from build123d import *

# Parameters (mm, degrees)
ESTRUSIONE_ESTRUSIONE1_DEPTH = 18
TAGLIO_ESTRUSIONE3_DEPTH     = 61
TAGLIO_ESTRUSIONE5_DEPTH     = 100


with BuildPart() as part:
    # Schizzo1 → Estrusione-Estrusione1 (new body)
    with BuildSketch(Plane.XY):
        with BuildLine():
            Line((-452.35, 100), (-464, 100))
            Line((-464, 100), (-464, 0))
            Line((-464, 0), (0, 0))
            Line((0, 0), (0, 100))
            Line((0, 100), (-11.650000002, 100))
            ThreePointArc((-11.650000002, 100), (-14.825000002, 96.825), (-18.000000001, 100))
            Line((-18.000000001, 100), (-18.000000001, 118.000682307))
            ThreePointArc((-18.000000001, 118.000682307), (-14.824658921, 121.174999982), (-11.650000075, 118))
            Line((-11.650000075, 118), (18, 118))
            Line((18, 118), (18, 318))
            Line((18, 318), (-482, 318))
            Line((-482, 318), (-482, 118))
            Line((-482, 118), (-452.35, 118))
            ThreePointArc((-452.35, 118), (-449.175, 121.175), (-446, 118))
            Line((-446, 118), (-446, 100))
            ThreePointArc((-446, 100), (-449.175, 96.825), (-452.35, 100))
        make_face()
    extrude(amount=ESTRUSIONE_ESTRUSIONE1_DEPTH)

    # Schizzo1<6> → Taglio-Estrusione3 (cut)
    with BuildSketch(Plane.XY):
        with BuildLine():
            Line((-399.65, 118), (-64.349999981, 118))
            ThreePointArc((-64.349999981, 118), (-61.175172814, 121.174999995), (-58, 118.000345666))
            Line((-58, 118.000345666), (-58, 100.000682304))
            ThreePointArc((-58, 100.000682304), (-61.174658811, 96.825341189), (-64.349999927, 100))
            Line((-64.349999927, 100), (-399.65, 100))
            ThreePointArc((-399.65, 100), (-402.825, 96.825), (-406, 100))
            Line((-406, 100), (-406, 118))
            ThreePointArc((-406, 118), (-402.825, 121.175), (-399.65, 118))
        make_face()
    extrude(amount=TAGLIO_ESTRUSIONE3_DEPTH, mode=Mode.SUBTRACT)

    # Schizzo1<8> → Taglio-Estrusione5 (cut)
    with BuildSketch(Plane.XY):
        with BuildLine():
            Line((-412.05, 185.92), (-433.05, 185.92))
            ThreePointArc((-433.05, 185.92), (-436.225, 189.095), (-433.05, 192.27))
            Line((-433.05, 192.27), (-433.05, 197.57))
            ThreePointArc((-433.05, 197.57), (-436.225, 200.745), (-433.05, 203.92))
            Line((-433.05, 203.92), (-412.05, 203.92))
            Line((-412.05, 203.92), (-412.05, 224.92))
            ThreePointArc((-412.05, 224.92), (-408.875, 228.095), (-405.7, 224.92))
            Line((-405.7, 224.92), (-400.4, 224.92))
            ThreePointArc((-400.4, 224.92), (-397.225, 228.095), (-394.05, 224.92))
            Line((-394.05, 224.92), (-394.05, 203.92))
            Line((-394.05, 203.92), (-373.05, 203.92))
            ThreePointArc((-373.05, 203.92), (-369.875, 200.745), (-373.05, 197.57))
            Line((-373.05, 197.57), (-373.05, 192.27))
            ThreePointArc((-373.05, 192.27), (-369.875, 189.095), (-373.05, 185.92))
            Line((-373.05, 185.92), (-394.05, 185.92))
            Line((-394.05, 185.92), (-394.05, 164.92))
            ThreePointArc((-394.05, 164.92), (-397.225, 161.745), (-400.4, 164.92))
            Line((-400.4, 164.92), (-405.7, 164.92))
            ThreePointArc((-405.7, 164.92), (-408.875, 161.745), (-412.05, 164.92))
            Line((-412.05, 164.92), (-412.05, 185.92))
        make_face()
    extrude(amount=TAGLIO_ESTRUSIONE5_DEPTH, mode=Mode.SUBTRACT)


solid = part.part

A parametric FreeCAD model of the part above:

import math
import FreeCAD as App
import Part
import Sketcher

V = App.Vector
Q = App.Units.Quantity

doc = App.newDocument("Part")
params = doc.addObject("Spreadsheet::Sheet", "Params")
for row, (alias, value) in enumerate([
    ("sketch1_width", "464 mm"),
    ("sketch1_width2", "500 mm"),
    ("sketch1_height", "100 mm"),
    ("sketch1_height2", "200 mm"),
    ("sketch1_height3", "18 mm"),
    ("pad1_length", "18 mm"),
    ("sketch2_height", "18 mm"),
    ("sketch2_width", "335.3 mm"),
    ("pocket1_length", "61 mm"),
    ("sketch3_width", "21 mm"),
    ("sketch3_width2", "5.3 mm"),
    ("pocket2_length", "100 mm"),
], start=1):
    params.set(f"A{row}", alias)
    params.set(f"B{row}", "=" + value)
    params.setAlias(f"B{row}", alias)

body = doc.addObject("PartDesign::Body", "Body")

# Sketch on XY plane
sketch1 = doc.addObject("Sketcher::SketchObject", "Sketch")
body.addObject(sketch1)
sketch1.AttachmentSupport = (doc.XY_Plane, [""])
sketch1.MapMode = "FlatFace"
sketch1.addGeometry(Part.LineSegment(V(-452.4, 100, 0), V(-464, 100, 0)), False)
sketch1.addGeometry(Part.LineSegment(V(-464, 100, 0), V(-464, 0, 0)), False)
sketch1.addGeometry(Part.LineSegment(V(-464, 0, 0), V(0, 0, 0)), False)
sketch1.addGeometry(Part.LineSegment(V(0, 0, 0), V(0, 100, 0)), False)
sketch1.addGeometry(Part.LineSegment(V(0, 100, 0), V(-11.7, 100, 0)), False)
sketch1.addGeometry(Part.ArcOfCircle(Part.Circle(V(-14.8, 100, 0), V(0, 0, 1), 3.2), math.radians(180), math.radians(360)), False)
sketch1.addGeometry(Part.LineSegment(V(-18, 100, 0), V(-18, 118, 0)), False)
sketch1.addGeometry(Part.ArcOfCircle(Part.Circle(V(-14.8, 118, 0), V(0, 0, 1), 3.2), math.radians(0), math.radians(180)), False)
sketch1.addGeometry(Part.LineSegment(V(-11.7, 118, 0), V(18, 118, 0)), False)
sketch1.addGeometry(Part.LineSegment(V(18, 118, 0), V(18, 318, 0)), False)
sketch1.addGeometry(Part.LineSegment(V(18, 318, 0), V(-482, 318, 0)), False)
sketch1.addGeometry(Part.LineSegment(V(-482, 318, 0), V(-482, 118, 0)), False)
sketch1.addGeometry(Part.LineSegment(V(-482, 118, 0), V(-452.4, 118, 0)), False)
sketch1.addGeometry(Part.ArcOfCircle(Part.Circle(V(-449.2, 118, 0), V(0, 0, 1), 3.2), math.radians(0), math.radians(180)), False)
sketch1.addGeometry(Part.LineSegment(V(-446, 118, 0), V(-446, 100, 0)), False)
sketch1.addGeometry(Part.ArcOfCircle(Part.Circle(V(-449.2, 100, 0), V(0, 0, 1), 3.2), math.radians(180), math.radians(360)), False)
sketch1.addConstraint(Sketcher.Constraint("Coincident", 0, 2, 1, 1))
sketch1.addConstraint(Sketcher.Constraint("Coincident", 1, 2, 2, 1))
sketch1.addConstraint(Sketcher.Constraint("Coincident", 2, 2, 3, 1))
sketch1.addConstraint(Sketcher.Constraint("Coincident", 3, 2, 4, 1))
sketch1.addConstraint(Sketcher.Constraint("Coincident", 4, 2, 5, 2))
sketch1.addConstraint(Sketcher.Constraint("Tangent", 5, 1, 6, 1))
sketch1.addConstraint(Sketcher.Constraint("Coincident", 6, 2, 7, 2))
sketch1.addConstraint(Sketcher.Constraint("Coincident", 7, 1, 8, 1))
sketch1.addConstraint(Sketcher.Constraint("Coincident", 8, 2, 9, 1))
sketch1.addConstraint(Sketcher.Constraint("Coincident", 9, 2, 10, 1))
sketch1.addConstraint(Sketcher.Constraint("Coincident", 10, 2, 11, 1))
sketch1.addConstraint(Sketcher.Constraint("Coincident", 11, 2, 12, 1))
sketch1.addConstraint(Sketcher.Constraint("Coincident", 12, 2, 13, 2))
sketch1.addConstraint(Sketcher.Constraint("Tangent", 13, 1, 14, 1))
sketch1.addConstraint(Sketcher.Constraint("Tangent", 14, 2, 15, 2))
sketch1.addConstraint(Sketcher.Constraint("Coincident", 15, 1, 0, 1))
sketch1.addConstraint(Sketcher.Constraint("Horizontal", 0))
sketch1.addConstraint(Sketcher.Constraint("Vertical", 1))
sketch1.addConstraint(Sketcher.Constraint("Horizontal", 2))
sketch1.addConstraint(Sketcher.Constraint("Vertical", 3))
sketch1.addConstraint(Sketcher.Constraint("Horizontal", 4))
sketch1.addConstraint(Sketcher.Constraint("Vertical", 6))
sketch1.addConstraint(Sketcher.Constraint("Horizontal", 8))
sketch1.addConstraint(Sketcher.Constraint("Vertical", 9))
sketch1.addConstraint(Sketcher.Constraint("Horizontal", 10))
sketch1.addConstraint(Sketcher.Constraint("Vertical", 11))
sketch1.addConstraint(Sketcher.Constraint("Horizontal", 12))
sketch1.addConstraint(Sketcher.Constraint("Vertical", 14))
sketch1.addConstraint(Sketcher.Constraint("Coincident", 2, 2, -1, 1))
sketch1.addConstraint(Sketcher.Constraint("Equal", 5, 7))
sketch1.addConstraint(Sketcher.Constraint("Equal", 7, 13))
sketch1.addConstraint(Sketcher.Constraint("Equal", 13, 15))
sketch1.addConstraint(Sketcher.Constraint("Horizontal", 7, 3, 13, 3))
sketch1.addConstraint(Sketcher.Constraint("Horizontal", 5, 3, 15, 3))
sketch1.addConstraint(Sketcher.Constraint("Horizontal", 15, 3, 0, 2))
sketch1.addConstraint(Sketcher.Constraint("Horizontal", 0, 2, 3, 2))
sketch1.addConstraint(Sketcher.Constraint("Horizontal", 13, 3, 7, 1))
sketch1.addConstraint(Sketcher.Constraint("Horizontal", 8, 2, 11, 2))
sketch1.addConstraint(Sketcher.Constraint("Equal", 0, 4))
sketch1.addConstraint(Sketcher.Constraint("Equal", 8, 12))
sketch1.addConstraint(Sketcher.Constraint("DistanceX", 2, 1, 2, 2, Q("464 mm")))
sketch1.addConstraint(Sketcher.Constraint("DistanceX", 10, 2, 10, 1, Q("500 mm")))
sketch1.addConstraint(Sketcher.Constraint("DistanceY", 1, 2, 1, 1, Q("100 mm")))
sketch1.addConstraint(Sketcher.Constraint("DistanceY", 9, 1, 9, 2, Q("200 mm")))
sketch1.addConstraint(Sketcher.Constraint("DistanceY", 14, 2, 14, 1, Q("18 mm")))
sketch1.addConstraint(Sketcher.Constraint("DistanceX", 5, 1, -1, 1, Q("18 mm")))
sketch1.addConstraint(Sketcher.Constraint("Radius", 5, Q("3.175 mm")))
sketch1.addConstraint(Sketcher.Constraint("DistanceY", 6, 1, 6, 2, Q("18.000682 mm")))
sketch1.setExpression("Constraints[40]", "Params.sketch1_width")
sketch1.setExpression("Constraints[41]", "Params.sketch1_width2")
sketch1.setExpression("Constraints[42]", "Params.sketch1_height")
sketch1.setExpression("Constraints[43]", "Params.sketch1_height2")
sketch1.setExpression("Constraints[44]", "Params.sketch1_height3")
pad1 = doc.addObject("PartDesign::Pad", "Pad")
body.addObject(pad1)
pad1.Profile = sketch1
pad1.setExpression("Length", "Params.pad1_length")

# Sketch on XY plane
sketch2 = doc.addObject("Sketcher::SketchObject", "Sketch001")
body.addObject(sketch2)
sketch2.AttachmentSupport = (doc.XY_Plane, [""])
sketch2.MapMode = "FlatFace"
sketch2.addGeometry(Part.LineSegment(V(-64.3, 118, 0), V(-399.6, 118, 0)), False)
sketch2.addGeometry(Part.ArcOfCircle(Part.Circle(V(-402.8, 118, 0), V(0, 0, 1), 3.2), math.radians(0), math.radians(180)), False)
sketch2.addGeometry(Part.LineSegment(V(-406, 118, 0), V(-406, 100, 0)), False)
sketch2.addGeometry(Part.ArcOfCircle(Part.Circle(V(-402.8, 100, 0), V(0, 0, 1), 3.2), math.radians(180), math.radians(360)), False)
sketch2.addGeometry(Part.LineSegment(V(-399.6, 100, 0), V(-64.3, 100, 0)), False)
sketch2.addGeometry(Part.ArcOfCircle(Part.Circle(V(-61.2, 100, 0), V(0, 0, 1), 3.2), math.radians(-180), math.radians(0)), False)
sketch2.addGeometry(Part.LineSegment(V(-58, 100, 0), V(-58, 118, 0)), False)
sketch2.addGeometry(Part.ArcOfCircle(Part.Circle(V(-61.2, 118, 0), V(0, 0, 1), 3.2), math.radians(0), math.radians(180)), False)
sketch2.addConstraint(Sketcher.Constraint("Coincident", 0, 2, 1, 1))
sketch2.addConstraint(Sketcher.Constraint("Tangent", 1, 2, 2, 1))
sketch2.addConstraint(Sketcher.Constraint("Tangent", 2, 2, 3, 1))
sketch2.addConstraint(Sketcher.Constraint("Coincident", 3, 2, 4, 1))
sketch2.addConstraint(Sketcher.Constraint("Coincident", 4, 2, 5, 1))
sketch2.addConstraint(Sketcher.Constraint("Coincident", 5, 2, 6, 1))
sketch2.addConstraint(Sketcher.Constraint("Coincident", 6, 2, 7, 1))
sketch2.addConstraint(Sketcher.Constraint("Coincident", 7, 2, 0, 1))
sketch2.addConstraint(Sketcher.Constraint("Horizontal", 0))
sketch2.addConstraint(Sketcher.Constraint("Vertical", 2))
sketch2.addConstraint(Sketcher.Constraint("Horizontal", 4))
sketch2.addConstraint(Sketcher.Constraint("Vertical", 6))
sketch2.addConstraint(Sketcher.Constraint("Equal", 1, 3))
sketch2.addConstraint(Sketcher.Constraint("Equal", 3, 5))
sketch2.addConstraint(Sketcher.Constraint("Equal", 5, 7))
sketch2.addConstraint(Sketcher.Constraint("Horizontal", 1, 3, 7, 3))
sketch2.addConstraint(Sketcher.Constraint("Horizontal", 7, 3, 0, 2))
sketch2.addConstraint(Sketcher.Constraint("Horizontal", 2, 2, 3, 2))
sketch2.addConstraint(Sketcher.Constraint("DistanceY", 2, 2, 2, 1, Q("18 mm")))
sketch2.addConstraint(Sketcher.Constraint("DistanceX", 0, 2, 0, 1, Q("335.3 mm")))
sketch2.addConstraint(Sketcher.Constraint("DistanceY", -1, 1, 1, 3, Q("118 mm")))
sketch2.addConstraint(Sketcher.Constraint("DistanceX", 1, 2, -1, 1, Q("406 mm")))
sketch2.addConstraint(Sketcher.Constraint("DistanceX", 5, 2, -1, 1, Q("58 mm")))
sketch2.addConstraint(Sketcher.Constraint("DistanceY", 6, 1, 6, 2, Q("17.999663 mm")))
sketch2.addConstraint(Sketcher.Constraint("DistanceY", -1, 1, 5, 3, Q("100.000341 mm")))
sketch2.addConstraint(Sketcher.Constraint("DistanceY", 5, 3, 5, 2, Q("0.000341 mm")))
sketch2.setExpression("Constraints[18]", "Params.sketch2_height")
sketch2.setExpression("Constraints[19]", "Params.sketch2_width")
pocket1 = doc.addObject("PartDesign::Pocket", "Pocket")
body.addObject(pocket1)
pocket1.Profile = sketch2
pocket1.setExpression("Length", "Params.pocket1_length")
pocket1.Reversed = True

# Sketch on XY plane
sketch3 = doc.addObject("Sketcher::SketchObject", "Sketch002")
body.addObject(sketch3)
sketch3.AttachmentSupport = (doc.XY_Plane, [""])
sketch3.MapMode = "FlatFace"
sketch3.addGeometry(Part.LineSegment(V(-433.1, 185.9, 0), V(-412.1, 185.9, 0)), False)
sketch3.addGeometry(Part.LineSegment(V(-412.1, 185.9, 0), V(-412.1, 164.9, 0)), False)
sketch3.addGeometry(Part.ArcOfCircle(Part.Circle(V(-408.9, 164.9, 0), V(0, 0, 1), 3.2), math.radians(180), math.radians(360)), False)
sketch3.addGeometry(Part.LineSegment(V(-405.7, 164.9, 0), V(-400.4, 164.9, 0)), False)
sketch3.addGeometry(Part.ArcOfCircle(Part.Circle(V(-397.2, 164.9, 0), V(0, 0, 1), 3.2), math.radians(180), math.radians(360)), False)
sketch3.addGeometry(Part.LineSegment(V(-394.1, 164.9, 0), V(-394.1, 185.9, 0)), False)
sketch3.addGeometry(Part.LineSegment(V(-394.1, 185.9, 0), V(-373.1, 185.9, 0)), False)
sketch3.addGeometry(Part.ArcOfCircle(Part.Circle(V(-373.1, 189.1, 0), V(0, 0, 1), 3.2), math.radians(-90), math.radians(90)), False)
sketch3.addGeometry(Part.LineSegment(V(-373.1, 192.3, 0), V(-373.1, 197.6, 0)), False)
sketch3.addGeometry(Part.ArcOfCircle(Part.Circle(V(-373.1, 200.7, 0), V(0, 0, 1), 3.2), math.radians(-90), math.radians(90)), False)
sketch3.addGeometry(Part.LineSegment(V(-373.1, 203.9, 0), V(-394.1, 203.9, 0)), False)
sketch3.addGeometry(Part.LineSegment(V(-394.1, 203.9, 0), V(-394.1, 224.9, 0)), False)
sketch3.addGeometry(Part.ArcOfCircle(Part.Circle(V(-397.2, 224.9, 0), V(0, 0, 1), 3.2), math.radians(0), math.radians(180)), False)
sketch3.addGeometry(Part.LineSegment(V(-400.4, 224.9, 0), V(-405.7, 224.9, 0)), False)
sketch3.addGeometry(Part.ArcOfCircle(Part.Circle(V(-408.9, 224.9, 0), V(0, 0, 1), 3.2), math.radians(0), math.radians(180)), False)
sketch3.addGeometry(Part.LineSegment(V(-412.1, 224.9, 0), V(-412.1, 203.9, 0)), False)
sketch3.addGeometry(Part.LineSegment(V(-412.1, 203.9, 0), V(-433.1, 203.9, 0)), False)
sketch3.addGeometry(Part.ArcOfCircle(Part.Circle(V(-433.1, 200.7, 0), V(0, 0, 1), 3.2), math.radians(90), math.radians(270)), False)
sketch3.addGeometry(Part.LineSegment(V(-433.1, 197.6, 0), V(-433.1, 192.3, 0)), False)
sketch3.addGeometry(Part.ArcOfCircle(Part.Circle(V(-433.1, 189.1, 0), V(0, 0, 1), 3.2), math.radians(90), math.radians(270)), False)
sketch3.addConstraint(Sketcher.Constraint("Coincident", 0, 2, 1, 1))
sketch3.addConstraint(Sketcher.Constraint("Tangent", 1, 2, 2, 1))
sketch3.addConstraint(Sketcher.Constraint("Coincident", 2, 2, 3, 1))
sketch3.addConstraint(Sketcher.Constraint("Coincident", 3, 2, 4, 1))
sketch3.addConstraint(Sketcher.Constraint("Tangent", 4, 2, 5, 1))
sketch3.addConstraint(Sketcher.Constraint("Coincident", 5, 2, 6, 1))
sketch3.addConstraint(Sketcher.Constraint("Tangent", 6, 2, 7, 1))
sketch3.addConstraint(Sketcher.Constraint("Coincident", 7, 2, 8, 1))
sketch3.addConstraint(Sketcher.Constraint("Coincident", 8, 2, 9, 1))
sketch3.addConstraint(Sketcher.Constraint("Tangent", 9, 2, 10, 1))
sketch3.addConstraint(Sketcher.Constraint("Coincident", 10, 2, 11, 1))
sketch3.addConstraint(Sketcher.Constraint("Tangent", 11, 2, 12, 1))
sketch3.addConstraint(Sketcher.Constraint("Coincident", 12, 2, 13, 1))
sketch3.addConstraint(Sketcher.Constraint("Coincident", 13, 2, 14, 1))
sketch3.addConstraint(Sketcher.Constraint("Tangent", 14, 2, 15, 1))
sketch3.addConstraint(Sketcher.Constraint("Coincident", 15, 2, 16, 1))
sketch3.addConstraint(Sketcher.Constraint("Tangent", 16, 2, 17, 1))
sketch3.addConstraint(Sketcher.Constraint("Coincident", 17, 2, 18, 1))
sketch3.addConstraint(Sketcher.Constraint("Coincident", 18, 2, 19, 1))
sketch3.addConstraint(Sketcher.Constraint("Tangent", 19, 2, 0, 1))
sketch3.addConstraint(Sketcher.Constraint("Horizontal", 0))
sketch3.addConstraint(Sketcher.Constraint("Vertical", 1))
sketch3.addConstraint(Sketcher.Constraint("Horizontal", 3))
sketch3.addConstraint(Sketcher.Constraint("Vertical", 5))
sketch3.addConstraint(Sketcher.Constraint("Horizontal", 6))
sketch3.addConstraint(Sketcher.Constraint("Vertical", 8))
sketch3.addConstraint(Sketcher.Constraint("Horizontal", 10))
sketch3.addConstraint(Sketcher.Constraint("Vertical", 11))
sketch3.addConstraint(Sketcher.Constraint("Horizontal", 13))
sketch3.addConstraint(Sketcher.Constraint("Vertical", 15))
sketch3.addConstraint(Sketcher.Constraint("Horizontal", 16))
sketch3.addConstraint(Sketcher.Constraint("Vertical", 18))
sketch3.addConstraint(Sketcher.Constraint("Equal", 2, 4))
sketch3.addConstraint(Sketcher.Constraint("Equal", 4, 7))
sketch3.addConstraint(Sketcher.Constraint("Equal", 7, 9))
sketch3.addConstraint(Sketcher.Constraint("Equal", 9, 12))
sketch3.addConstraint(Sketcher.Constraint("Equal", 12, 14))
sketch3.addConstraint(Sketcher.Constraint("Equal", 14, 17))
sketch3.addConstraint(Sketcher.Constraint("Equal", 17, 19))
sketch3.addConstraint(Sketcher.Constraint("Horizontal", 2, 3, 4, 3))
sketch3.addConstraint(Sketcher.Constraint("Horizontal", 12, 3, 14, 3))
sketch3.addConstraint(Sketcher.Constraint("Horizontal", 9, 3, 17, 3))
sketch3.addConstraint(Sketcher.Constraint("Horizontal", 7, 3, 19, 3))
sketch3.addConstraint(Sketcher.Constraint("Horizontal", 1, 2, 2, 2))
sketch3.addConstraint(Sketcher.Constraint("Horizontal", 11, 2, 12, 2))
sketch3.addConstraint(Sketcher.Constraint("Vertical", 7, 3, 9, 3))
sketch3.addConstraint(Sketcher.Constraint("Vertical", 4, 3, 12, 3))
sketch3.addConstraint(Sketcher.Constraint("Vertical", 2, 3, 14, 3))
sketch3.addConstraint(Sketcher.Constraint("Vertical", 17, 3, 19, 3))
sketch3.addConstraint(Sketcher.Constraint("Vertical", 6, 2, 7, 2))
sketch3.addConstraint(Sketcher.Constraint("Vertical", 16, 2, 17, 2))
sketch3.addConstraint(Sketcher.Constraint("Equal", 0, 6))
sketch3.addConstraint(Sketcher.Constraint("Equal", 16, 1))
sketch3.addConstraint(Sketcher.Constraint("Equal", 13, 8))
sketch3.addConstraint(Sketcher.Constraint("Equal", 5, 11))
sketch3.addConstraint(Sketcher.Constraint("DistanceX", 0, 1, 0, 2, Q("21 mm")))
sketch3.addConstraint(Sketcher.Constraint("DistanceX", 3, 1, 3, 2, Q("5.3 mm")))
sketch3.addConstraint(Sketcher.Constraint("Radius", 2, Q("3.175 mm")))
sketch3.addConstraint(Sketcher.Constraint("DistanceX", 2, 2, -1, 1, Q("405.7 mm")))
sketch3.addConstraint(Sketcher.Constraint("DistanceY", -1, 1, 2, 3, Q("164.92 mm")))
sketch3.setExpression("Constraints[55]", "Params.sketch3_width")
sketch3.setExpression("Constraints[56]", "Params.sketch3_width2")
pocket2 = doc.addObject("PartDesign::Pocket", "Pocket001")
body.addObject(pocket2)
pocket2.Profile = sketch3
pocket2.setExpression("Length", "Params.pocket2_length")
pocket2.Reversed = True

doc.recompute()
